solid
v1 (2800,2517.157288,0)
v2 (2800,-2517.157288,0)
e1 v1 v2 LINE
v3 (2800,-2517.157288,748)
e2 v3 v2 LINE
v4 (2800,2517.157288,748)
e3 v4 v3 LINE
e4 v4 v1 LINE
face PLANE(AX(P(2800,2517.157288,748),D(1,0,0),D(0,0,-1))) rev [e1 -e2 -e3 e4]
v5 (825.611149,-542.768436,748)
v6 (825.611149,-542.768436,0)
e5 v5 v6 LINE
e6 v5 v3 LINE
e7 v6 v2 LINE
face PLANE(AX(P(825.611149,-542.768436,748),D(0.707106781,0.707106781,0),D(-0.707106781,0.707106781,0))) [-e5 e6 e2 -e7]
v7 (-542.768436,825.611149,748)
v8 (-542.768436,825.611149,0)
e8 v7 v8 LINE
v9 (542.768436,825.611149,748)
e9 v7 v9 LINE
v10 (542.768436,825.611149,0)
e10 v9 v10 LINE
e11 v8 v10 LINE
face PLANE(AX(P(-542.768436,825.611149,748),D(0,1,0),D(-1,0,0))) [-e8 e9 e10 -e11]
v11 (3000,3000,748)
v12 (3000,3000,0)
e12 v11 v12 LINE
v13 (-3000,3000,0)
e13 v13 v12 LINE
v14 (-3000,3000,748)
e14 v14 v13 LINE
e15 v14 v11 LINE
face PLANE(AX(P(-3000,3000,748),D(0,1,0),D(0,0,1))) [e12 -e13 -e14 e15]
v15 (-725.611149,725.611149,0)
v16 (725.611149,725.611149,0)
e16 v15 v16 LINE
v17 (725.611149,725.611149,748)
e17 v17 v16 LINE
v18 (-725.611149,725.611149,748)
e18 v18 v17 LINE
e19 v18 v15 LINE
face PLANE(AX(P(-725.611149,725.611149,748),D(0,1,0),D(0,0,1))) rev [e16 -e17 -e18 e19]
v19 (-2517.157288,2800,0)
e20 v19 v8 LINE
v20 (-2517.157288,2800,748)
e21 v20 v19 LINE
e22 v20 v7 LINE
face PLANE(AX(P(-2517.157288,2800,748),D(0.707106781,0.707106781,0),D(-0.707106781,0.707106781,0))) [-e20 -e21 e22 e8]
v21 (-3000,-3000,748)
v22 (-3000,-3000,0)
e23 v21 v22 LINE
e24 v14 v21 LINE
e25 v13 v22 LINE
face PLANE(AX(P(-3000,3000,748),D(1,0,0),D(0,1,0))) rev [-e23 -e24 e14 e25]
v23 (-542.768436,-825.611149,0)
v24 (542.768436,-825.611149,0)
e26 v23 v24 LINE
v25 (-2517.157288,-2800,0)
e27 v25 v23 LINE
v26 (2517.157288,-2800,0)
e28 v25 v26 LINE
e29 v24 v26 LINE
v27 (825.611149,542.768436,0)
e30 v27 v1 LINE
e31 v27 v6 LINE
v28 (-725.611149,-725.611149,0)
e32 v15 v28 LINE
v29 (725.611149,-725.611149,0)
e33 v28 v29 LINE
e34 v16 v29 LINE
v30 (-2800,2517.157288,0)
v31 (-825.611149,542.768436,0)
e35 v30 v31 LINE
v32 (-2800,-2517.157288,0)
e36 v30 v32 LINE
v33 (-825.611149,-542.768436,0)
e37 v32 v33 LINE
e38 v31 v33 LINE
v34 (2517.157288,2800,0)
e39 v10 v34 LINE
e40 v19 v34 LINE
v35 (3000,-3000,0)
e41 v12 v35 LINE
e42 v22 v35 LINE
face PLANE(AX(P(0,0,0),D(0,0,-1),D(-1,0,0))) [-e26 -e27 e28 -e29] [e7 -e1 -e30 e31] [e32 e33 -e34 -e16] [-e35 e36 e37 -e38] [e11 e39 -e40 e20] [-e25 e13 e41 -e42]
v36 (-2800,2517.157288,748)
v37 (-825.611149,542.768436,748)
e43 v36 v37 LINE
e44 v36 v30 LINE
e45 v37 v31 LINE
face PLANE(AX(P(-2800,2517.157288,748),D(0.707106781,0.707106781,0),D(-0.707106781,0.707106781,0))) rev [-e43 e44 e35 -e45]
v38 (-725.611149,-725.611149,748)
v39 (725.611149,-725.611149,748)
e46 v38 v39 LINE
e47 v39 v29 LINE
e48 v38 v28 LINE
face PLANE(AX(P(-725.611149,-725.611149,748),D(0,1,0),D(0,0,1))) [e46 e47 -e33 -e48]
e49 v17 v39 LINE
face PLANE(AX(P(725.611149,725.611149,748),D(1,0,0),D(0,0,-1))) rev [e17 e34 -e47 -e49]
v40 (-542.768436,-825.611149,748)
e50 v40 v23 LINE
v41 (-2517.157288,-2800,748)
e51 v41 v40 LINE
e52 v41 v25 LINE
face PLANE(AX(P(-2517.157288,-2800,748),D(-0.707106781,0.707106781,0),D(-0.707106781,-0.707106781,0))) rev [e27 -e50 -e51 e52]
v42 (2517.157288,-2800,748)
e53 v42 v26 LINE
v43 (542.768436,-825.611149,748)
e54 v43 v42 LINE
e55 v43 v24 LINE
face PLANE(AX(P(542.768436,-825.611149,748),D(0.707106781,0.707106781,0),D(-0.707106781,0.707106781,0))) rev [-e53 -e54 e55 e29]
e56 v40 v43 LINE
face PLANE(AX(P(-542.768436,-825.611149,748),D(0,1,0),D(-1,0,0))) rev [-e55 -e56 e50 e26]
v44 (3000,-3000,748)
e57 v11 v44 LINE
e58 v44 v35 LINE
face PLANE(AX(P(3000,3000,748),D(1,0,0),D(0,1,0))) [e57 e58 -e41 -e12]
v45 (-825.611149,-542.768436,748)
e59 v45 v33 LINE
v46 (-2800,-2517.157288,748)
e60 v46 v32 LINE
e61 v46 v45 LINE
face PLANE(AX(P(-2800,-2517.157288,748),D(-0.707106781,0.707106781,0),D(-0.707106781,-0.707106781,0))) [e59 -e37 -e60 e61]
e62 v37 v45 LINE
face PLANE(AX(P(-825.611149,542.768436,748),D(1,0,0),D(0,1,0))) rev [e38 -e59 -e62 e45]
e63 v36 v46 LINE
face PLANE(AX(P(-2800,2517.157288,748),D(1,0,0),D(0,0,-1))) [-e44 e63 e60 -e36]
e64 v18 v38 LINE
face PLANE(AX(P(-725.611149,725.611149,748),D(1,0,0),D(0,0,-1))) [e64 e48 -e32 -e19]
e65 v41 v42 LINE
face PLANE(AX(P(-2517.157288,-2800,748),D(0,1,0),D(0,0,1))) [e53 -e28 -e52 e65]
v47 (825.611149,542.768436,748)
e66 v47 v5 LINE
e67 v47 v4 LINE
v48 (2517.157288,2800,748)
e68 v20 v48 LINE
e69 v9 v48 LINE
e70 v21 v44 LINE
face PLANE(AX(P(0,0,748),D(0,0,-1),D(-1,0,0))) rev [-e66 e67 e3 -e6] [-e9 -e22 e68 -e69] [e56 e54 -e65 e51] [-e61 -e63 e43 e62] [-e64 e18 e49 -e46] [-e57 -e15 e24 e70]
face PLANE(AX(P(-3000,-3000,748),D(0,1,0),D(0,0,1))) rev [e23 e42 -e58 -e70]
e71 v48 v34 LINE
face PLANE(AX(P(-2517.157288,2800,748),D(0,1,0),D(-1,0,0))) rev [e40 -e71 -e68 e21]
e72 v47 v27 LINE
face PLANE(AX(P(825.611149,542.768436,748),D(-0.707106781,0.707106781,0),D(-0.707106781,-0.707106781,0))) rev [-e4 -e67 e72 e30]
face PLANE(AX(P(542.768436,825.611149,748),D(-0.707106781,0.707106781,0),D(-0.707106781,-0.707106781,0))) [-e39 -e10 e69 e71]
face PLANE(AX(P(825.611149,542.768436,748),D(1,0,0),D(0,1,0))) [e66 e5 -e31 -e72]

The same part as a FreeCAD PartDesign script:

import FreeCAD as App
import Part
import Sketcher
from FreeCAD import Vector
Q = App.Units.Quantity

doc = App.newDocument("Part")
body = doc.addObject("PartDesign::Body", "Body")

# Sketch on XY plane
sketch1 = body.newObject("Sketcher::SketchObject", "Sketch")
sketch1.AttachmentSupport = (doc.getObject("XY_Plane"), [""])
sketch1.MapMode = "FlatFace"
sketch1.addGeometry(Part.LineSegment(Vector(-3000, 3000, 0), Vector(-3000, -3000, 0)), False)
sketch1.addGeometry(Part.LineSegment(Vector(-3000, -3000, 0), Vector(3000, -3000, 0)), False)
sketch1.addGeometry(Part.LineSegment(Vector(3000, -3000, 0), Vector(3000, 3000, 0)), False)
sketch1.addGeometry(Part.LineSegment(Vector(3000, 3000, 0), Vector(-3000, 3000, 0)), False)
sketch1.addGeometry(Part.LineSegment(Vector(2517, -2800, 0), Vector(-2517, -2800, 0)), False)
sketch1.addGeometry(Part.LineSegment(Vector(-2517, -2800, 0), Vector(-543, -826, 0)), False)
sketch1.addGeometry(Part.LineSegment(Vector(-543, -826, 0), Vector(543, -826, 0)), False)
sketch1.addGeometry(Part.LineSegment(Vector(543, -826, 0), Vector(2517, -2800, 0)), False)
sketch1.addGeometry(Part.LineSegment(Vector(-2800, -2517, 0), Vector(-2800, 2517, 0)), False)
sketch1.addGeometry(Part.LineSegment(Vector(-2800, 2517, 0), Vector(-826, 543, 0)), False)
sketch1.addGeometry(Part.LineSegment(Vector(-826, 543, 0), Vector(-826, -543, 0)), False)
sketch1.addGeometry(Part.LineSegment(Vector(-826, -543, 0), Vector(-2800, -2517, 0)), False)
sketch1.addGeometry(Part.LineSegment(Vector(726, -726, 0), Vector(-726, -726, 0)), False)
sketch1.addGeometry(Part.LineSegment(Vector(-726, -726, 0), Vector(-726, 726, 0)), False)
sketch1.addGeometry(Part.LineSegment(Vector(-726, 726, 0), Vector(726, 726, 0)), False)
sketch1.addGeometry(Part.LineSegment(Vector(726, 726, 0), Vector(726, -726, 0)), False)
sketch1.addGeometry(Part.LineSegment(Vector(826, 543, 0), Vector(2800, 2517, 0)), False)
sketch1.addGeometry(Part.LineSegment(Vector(2800, 2517, 0), Vector(2800, -2517, 0)), False)
sketch1.addGeometry(Part.LineSegment(Vector(2800, -2517, 0), Vector(826, -543, 0)), False)
sketch1.addGeometry(Part.LineSegment(Vector(826, -543, 0), Vector(826, 543, 0)), False)
sketch1.addGeometry(Part.LineSegment(Vector(-543, 826, 0), Vector(-2517, 2800, 0)), False)
sketch1.addGeometry(Part.LineSegment(Vector(-2517, 2800, 0), Vector(2517, 2800, 0)), False)
sketch1.addGeometry(Part.LineSegment(Vector(2517, 2800, 0), Vector(543, 826, 0)), False)
sketch1.addGeometry(Part.LineSegment(Vector(543, 826, 0), Vector(-543, 826, 0)), False)
sketch1.addConstraint(Sketcher.Constraint("Coincident", 0, 2, 1, 1))
sketch1.addConstraint(Sketcher.Constraint("Coincident", 1, 2, 2, 1))
sketch1.addConstraint(Sketcher.Constraint("Coincident", 2, 2, 3, 1))
sketch1.addConstraint(Sketcher.Constraint("Coincident", 3, 2, 0, 1))
sketch1.addConstraint(Sketcher.Constraint("Coincident", 4, 2, 5, 1))
sketch1.addConstraint(Sketcher.Constraint("Coincident", 5, 2, 6, 1))
sketch1.addConstraint(Sketcher.Constraint("Coincident", 6, 2, 7, 1))
sketch1.addConstraint(Sketcher.Constraint("Coincident", 7, 2, 4, 1))
sketch1.addConstraint(Sketcher.Constraint("Coincident", 8, 2, 9, 1))
sketch1.addConstraint(Sketcher.Constraint("Coincident", 9, 2, 10, 1))
sketch1.addConstraint(Sketcher.Constraint("Coincident", 10, 2, 11, 1))
sketch1.addConstraint(Sketcher.Constraint("Coincident", 11, 2, 8, 1))
sketch1.addConstraint(Sketcher.Constraint("Coincident", 12, 2, 13, 1))
sketch1.addConstraint(Sketcher.Constraint("Coincident", 13, 2, 14, 1))
sketch1.addConstraint(Sketcher.Constraint("Coincident", 14, 2, 15, 1))
sketch1.addConstraint(Sketcher.Constraint("Coincident", 15, 2, 12, 1))
sketch1.addConstraint(Sketcher.Constraint("Coincident", 16, 2, 17, 1))
sketch1.addConstraint(Sketcher.Constraint("Coincident", 17, 2, 18, 1))
sketch1.addConstraint(Sketcher.Constraint("Coincident", 18, 2, 19, 1))
sketch1.addConstraint(Sketcher.Constraint("Coincident", 19, 2, 16, 1))
sketch1.addConstraint(Sketcher.Constraint("Coincident", 20, 2, 21, 1))
sketch1.addConstraint(Sketcher.Constraint("Coincident", 21, 2, 22, 1))
sketch1.addConstraint(Sketcher.Constraint("Coincident", 22, 2, 23, 1))
sketch1.addConstraint(Sketcher.Constraint("Coincident", 23, 2, 20, 1))
sketch1.addConstraint(Sketcher.Constraint("Vertical", 0))
sketch1.addConstraint(Sketcher.Constraint("Horizontal", 1))
sketch1.addConstraint(Sketcher.Constraint("Vertical", 2))
sketch1.addConstraint(Sketcher.Constraint("Horizontal", 3))
sketch1.addConstraint(Sketcher.Constraint("Horizontal", 4))
sketch1.addConstraint(Sketcher.Constraint("Horizontal", 6))
sketch1.addConstraint(Sketcher.Constraint("Vertical", 8))
sketch1.addConstraint(Sketcher.Constraint("Vertical", 10))
sketch1.addConstraint(Sketcher.Constraint("Horizontal", 12))
sketch1.addConstraint(Sketcher.Constraint("Vertical", 13))
sketch1.addConstraint(Sketcher.Constraint("Horizontal", 14))
sketch1.addConstraint(Sketcher.Constraint("Vertical", 15))
sketch1.addConstraint(Sketcher.Constraint("Vertical", 17))
sketch1.addConstraint(Sketcher.Constraint("Vertical", 19))
sketch1.addConstraint(Sketcher.Constraint("Horizontal", 21))
sketch1.addConstraint(Sketcher.Constraint("Horizontal", 23))
sketch1.addConstraint(Sketcher.Constraint("Symmetric", 0, 2, 2, 2, -1, 1))
sketch1.addConstraint(Sketcher.Constraint("Symmetric", 12, 2, 14, 2, -1, 1))
sketch1.addConstraint(Sketcher.Constraint("Symmetric", 11, 2, 16, 2, -1, 1))
sketch1.addConstraint(Sketcher.Constraint("Symmetric", 9, 2, 18, 2, -1, 1))
sketch1.addConstraint(Sketcher.Constraint("Symmetric", 7, 2, 20, 2, -1, 1))
sketch1.addConstraint(Sketcher.Constraint("Symmetric", 5, 2, 22, 2, -1, 1))
sketch1.addConstraint(Sketcher.Constraint("Perpendicular", 5, 7))
sketch1.addConstraint(Sketcher.Constraint("Parallel", 7, 9))
sketch1.addConstraint(Sketcher.Constraint("Perpendicular", 9, 11))
sketch1.addConstraint(Sketcher.Constraint("Parallel", 11, 16))
sketch1.addConstraint(Sketcher.Constraint("Perpendicular", 16, 18))
sketch1.addConstraint(Sketcher.Constraint("Parallel", 18, 20))
sketch1.addConstraint(Sketcher.Constraint("Perpendicular", 20, 22))
sketch1.addConstraint(Sketcher.Constraint("Horizontal", 8, 2, 16, 2))
sketch1.addConstraint(Sketcher.Constraint("Horizontal", 10, 2, 18, 2))
sketch1.addConstraint(Sketcher.Constraint("Vertical", 4, 2, 20, 2))
sketch1.addConstraint(Sketcher.Constraint("Equal", 3, 0))
sketch1.addConstraint(Sketcher.Constraint("Equal", 21, 8))
sketch1.addConstraint(Sketcher.Constraint("Equal", 23, 10))
sketch1.addConstraint(Sketcher.Constraint("Equal", 14, 13))
sketch1.addConstraint(Sketcher.Constraint("DistanceX", 1, 1, 1, 2, Q("6000 mm")))
sketch1.addConstraint(Sketcher.Constraint("DistanceY", 4, 2, -1, 1, Q("2800 mm")))
sketch1.addConstraint(Sketcher.Constraint("DistanceX", 8, 2, -1, 1, Q("2800 mm")))
sketch1.addConstraint(Sketcher.Constraint("DistanceY", 5, 2, 12, 2, Q("100 mm")))
sketch1.addConstraint(Sketcher.Constraint("Distance", 5, Q("2792.207491 mm")))
sketch1.addConstraint(Sketcher.Constraint("DistanceX", 4, 2, 4, 1, Q("5034.314575 mm")))
pad1 = body.newObject("PartDesign::Pad", "Pad")
pad1.Profile = sketch1
pad1.Length = 748

doc.recompute()
